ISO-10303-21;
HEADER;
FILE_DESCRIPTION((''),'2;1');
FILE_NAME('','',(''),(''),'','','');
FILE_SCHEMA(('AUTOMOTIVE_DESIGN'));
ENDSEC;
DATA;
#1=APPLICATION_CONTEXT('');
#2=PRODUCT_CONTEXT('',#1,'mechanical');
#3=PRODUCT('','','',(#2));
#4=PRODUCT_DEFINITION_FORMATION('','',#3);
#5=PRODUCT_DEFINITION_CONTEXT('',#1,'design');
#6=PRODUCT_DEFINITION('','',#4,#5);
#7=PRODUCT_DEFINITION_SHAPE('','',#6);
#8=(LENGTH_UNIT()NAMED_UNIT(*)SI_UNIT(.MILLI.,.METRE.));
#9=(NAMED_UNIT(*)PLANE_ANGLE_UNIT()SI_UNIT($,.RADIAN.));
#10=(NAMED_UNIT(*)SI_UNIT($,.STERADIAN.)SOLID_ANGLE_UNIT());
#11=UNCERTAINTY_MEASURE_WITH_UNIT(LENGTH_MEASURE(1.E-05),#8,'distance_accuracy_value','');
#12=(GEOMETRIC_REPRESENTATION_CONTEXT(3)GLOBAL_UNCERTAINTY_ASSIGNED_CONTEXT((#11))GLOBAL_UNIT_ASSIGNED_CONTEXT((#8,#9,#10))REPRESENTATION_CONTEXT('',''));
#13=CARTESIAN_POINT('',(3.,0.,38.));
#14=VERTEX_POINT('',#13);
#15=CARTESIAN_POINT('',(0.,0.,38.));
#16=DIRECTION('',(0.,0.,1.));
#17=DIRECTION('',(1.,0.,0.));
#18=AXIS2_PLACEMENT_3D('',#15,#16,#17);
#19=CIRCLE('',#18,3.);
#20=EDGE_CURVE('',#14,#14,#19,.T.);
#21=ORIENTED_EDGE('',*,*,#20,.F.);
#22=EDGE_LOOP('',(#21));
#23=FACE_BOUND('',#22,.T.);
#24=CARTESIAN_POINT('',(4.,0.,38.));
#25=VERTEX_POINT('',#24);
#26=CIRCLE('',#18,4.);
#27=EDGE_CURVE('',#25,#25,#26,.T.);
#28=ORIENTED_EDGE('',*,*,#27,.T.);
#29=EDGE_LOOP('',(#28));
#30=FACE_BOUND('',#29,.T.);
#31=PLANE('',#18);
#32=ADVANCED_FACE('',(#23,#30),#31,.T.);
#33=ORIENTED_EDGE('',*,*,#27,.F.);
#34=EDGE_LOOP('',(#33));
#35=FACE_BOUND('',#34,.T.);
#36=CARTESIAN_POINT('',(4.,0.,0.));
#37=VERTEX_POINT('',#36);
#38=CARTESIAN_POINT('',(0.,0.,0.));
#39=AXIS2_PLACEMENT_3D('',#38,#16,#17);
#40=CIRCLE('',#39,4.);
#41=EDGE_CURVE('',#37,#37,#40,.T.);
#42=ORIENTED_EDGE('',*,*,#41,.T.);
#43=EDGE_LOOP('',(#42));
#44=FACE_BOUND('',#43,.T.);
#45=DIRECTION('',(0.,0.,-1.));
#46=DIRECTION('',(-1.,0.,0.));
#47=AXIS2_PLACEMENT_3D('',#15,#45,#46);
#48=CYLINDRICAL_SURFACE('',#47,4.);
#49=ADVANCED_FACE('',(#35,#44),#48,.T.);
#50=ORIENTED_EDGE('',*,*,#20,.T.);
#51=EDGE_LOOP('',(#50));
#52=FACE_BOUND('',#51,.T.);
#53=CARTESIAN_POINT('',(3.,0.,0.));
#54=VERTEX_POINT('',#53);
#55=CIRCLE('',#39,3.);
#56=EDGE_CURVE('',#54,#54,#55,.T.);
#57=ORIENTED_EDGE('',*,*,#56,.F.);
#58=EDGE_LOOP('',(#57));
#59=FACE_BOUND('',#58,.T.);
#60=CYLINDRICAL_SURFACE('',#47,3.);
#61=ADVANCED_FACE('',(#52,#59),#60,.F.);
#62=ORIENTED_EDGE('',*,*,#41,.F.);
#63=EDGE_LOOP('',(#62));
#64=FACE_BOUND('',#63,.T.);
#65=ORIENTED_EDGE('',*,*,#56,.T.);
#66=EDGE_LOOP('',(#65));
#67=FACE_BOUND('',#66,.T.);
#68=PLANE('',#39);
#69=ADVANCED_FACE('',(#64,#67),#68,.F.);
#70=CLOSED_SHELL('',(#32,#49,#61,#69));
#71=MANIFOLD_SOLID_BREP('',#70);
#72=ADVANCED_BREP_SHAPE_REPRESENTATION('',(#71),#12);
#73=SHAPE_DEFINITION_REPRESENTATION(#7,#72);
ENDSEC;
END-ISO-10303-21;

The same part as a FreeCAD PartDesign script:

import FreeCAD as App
import Part
import Sketcher
Q = App.Units.Quantity

doc = App.newDocument("Part")
body = doc.addObject("PartDesign::Body", "Body")

# Sketch on XY plane
sketch1 = body.newObject("Sketcher::SketchObject", "Sketch")
sketch1.AttachmentSupport = (doc.getObject("XY_Plane"), [""])
sketch1.MapMode = "FlatFace"
sketch1.addGeometry([
    Part.Circle(App.Vector(0, 0, 0), App.Vector(0, 0, 1), 4),
    Part.Circle(App.Vector(0, 0, 0), App.Vector(0, 0, 1), 3),
], False)
sketch1.addConstraint([
    Sketcher.Constraint("Coincident", 0, 3, -1, 1),
    Sketcher.Constraint("Coincident", 1, 3, -1, 1),
    Sketcher.Constraint("Diameter", 0, Q("8 mm")),
    Sketcher.Constraint("Diameter", 1, Q("6 mm")),
])
pad1 = body.newObject("PartDesign::Pad", "Pad")
pad1.Profile = sketch1
pad1.Length = 38

doc.recompute()
